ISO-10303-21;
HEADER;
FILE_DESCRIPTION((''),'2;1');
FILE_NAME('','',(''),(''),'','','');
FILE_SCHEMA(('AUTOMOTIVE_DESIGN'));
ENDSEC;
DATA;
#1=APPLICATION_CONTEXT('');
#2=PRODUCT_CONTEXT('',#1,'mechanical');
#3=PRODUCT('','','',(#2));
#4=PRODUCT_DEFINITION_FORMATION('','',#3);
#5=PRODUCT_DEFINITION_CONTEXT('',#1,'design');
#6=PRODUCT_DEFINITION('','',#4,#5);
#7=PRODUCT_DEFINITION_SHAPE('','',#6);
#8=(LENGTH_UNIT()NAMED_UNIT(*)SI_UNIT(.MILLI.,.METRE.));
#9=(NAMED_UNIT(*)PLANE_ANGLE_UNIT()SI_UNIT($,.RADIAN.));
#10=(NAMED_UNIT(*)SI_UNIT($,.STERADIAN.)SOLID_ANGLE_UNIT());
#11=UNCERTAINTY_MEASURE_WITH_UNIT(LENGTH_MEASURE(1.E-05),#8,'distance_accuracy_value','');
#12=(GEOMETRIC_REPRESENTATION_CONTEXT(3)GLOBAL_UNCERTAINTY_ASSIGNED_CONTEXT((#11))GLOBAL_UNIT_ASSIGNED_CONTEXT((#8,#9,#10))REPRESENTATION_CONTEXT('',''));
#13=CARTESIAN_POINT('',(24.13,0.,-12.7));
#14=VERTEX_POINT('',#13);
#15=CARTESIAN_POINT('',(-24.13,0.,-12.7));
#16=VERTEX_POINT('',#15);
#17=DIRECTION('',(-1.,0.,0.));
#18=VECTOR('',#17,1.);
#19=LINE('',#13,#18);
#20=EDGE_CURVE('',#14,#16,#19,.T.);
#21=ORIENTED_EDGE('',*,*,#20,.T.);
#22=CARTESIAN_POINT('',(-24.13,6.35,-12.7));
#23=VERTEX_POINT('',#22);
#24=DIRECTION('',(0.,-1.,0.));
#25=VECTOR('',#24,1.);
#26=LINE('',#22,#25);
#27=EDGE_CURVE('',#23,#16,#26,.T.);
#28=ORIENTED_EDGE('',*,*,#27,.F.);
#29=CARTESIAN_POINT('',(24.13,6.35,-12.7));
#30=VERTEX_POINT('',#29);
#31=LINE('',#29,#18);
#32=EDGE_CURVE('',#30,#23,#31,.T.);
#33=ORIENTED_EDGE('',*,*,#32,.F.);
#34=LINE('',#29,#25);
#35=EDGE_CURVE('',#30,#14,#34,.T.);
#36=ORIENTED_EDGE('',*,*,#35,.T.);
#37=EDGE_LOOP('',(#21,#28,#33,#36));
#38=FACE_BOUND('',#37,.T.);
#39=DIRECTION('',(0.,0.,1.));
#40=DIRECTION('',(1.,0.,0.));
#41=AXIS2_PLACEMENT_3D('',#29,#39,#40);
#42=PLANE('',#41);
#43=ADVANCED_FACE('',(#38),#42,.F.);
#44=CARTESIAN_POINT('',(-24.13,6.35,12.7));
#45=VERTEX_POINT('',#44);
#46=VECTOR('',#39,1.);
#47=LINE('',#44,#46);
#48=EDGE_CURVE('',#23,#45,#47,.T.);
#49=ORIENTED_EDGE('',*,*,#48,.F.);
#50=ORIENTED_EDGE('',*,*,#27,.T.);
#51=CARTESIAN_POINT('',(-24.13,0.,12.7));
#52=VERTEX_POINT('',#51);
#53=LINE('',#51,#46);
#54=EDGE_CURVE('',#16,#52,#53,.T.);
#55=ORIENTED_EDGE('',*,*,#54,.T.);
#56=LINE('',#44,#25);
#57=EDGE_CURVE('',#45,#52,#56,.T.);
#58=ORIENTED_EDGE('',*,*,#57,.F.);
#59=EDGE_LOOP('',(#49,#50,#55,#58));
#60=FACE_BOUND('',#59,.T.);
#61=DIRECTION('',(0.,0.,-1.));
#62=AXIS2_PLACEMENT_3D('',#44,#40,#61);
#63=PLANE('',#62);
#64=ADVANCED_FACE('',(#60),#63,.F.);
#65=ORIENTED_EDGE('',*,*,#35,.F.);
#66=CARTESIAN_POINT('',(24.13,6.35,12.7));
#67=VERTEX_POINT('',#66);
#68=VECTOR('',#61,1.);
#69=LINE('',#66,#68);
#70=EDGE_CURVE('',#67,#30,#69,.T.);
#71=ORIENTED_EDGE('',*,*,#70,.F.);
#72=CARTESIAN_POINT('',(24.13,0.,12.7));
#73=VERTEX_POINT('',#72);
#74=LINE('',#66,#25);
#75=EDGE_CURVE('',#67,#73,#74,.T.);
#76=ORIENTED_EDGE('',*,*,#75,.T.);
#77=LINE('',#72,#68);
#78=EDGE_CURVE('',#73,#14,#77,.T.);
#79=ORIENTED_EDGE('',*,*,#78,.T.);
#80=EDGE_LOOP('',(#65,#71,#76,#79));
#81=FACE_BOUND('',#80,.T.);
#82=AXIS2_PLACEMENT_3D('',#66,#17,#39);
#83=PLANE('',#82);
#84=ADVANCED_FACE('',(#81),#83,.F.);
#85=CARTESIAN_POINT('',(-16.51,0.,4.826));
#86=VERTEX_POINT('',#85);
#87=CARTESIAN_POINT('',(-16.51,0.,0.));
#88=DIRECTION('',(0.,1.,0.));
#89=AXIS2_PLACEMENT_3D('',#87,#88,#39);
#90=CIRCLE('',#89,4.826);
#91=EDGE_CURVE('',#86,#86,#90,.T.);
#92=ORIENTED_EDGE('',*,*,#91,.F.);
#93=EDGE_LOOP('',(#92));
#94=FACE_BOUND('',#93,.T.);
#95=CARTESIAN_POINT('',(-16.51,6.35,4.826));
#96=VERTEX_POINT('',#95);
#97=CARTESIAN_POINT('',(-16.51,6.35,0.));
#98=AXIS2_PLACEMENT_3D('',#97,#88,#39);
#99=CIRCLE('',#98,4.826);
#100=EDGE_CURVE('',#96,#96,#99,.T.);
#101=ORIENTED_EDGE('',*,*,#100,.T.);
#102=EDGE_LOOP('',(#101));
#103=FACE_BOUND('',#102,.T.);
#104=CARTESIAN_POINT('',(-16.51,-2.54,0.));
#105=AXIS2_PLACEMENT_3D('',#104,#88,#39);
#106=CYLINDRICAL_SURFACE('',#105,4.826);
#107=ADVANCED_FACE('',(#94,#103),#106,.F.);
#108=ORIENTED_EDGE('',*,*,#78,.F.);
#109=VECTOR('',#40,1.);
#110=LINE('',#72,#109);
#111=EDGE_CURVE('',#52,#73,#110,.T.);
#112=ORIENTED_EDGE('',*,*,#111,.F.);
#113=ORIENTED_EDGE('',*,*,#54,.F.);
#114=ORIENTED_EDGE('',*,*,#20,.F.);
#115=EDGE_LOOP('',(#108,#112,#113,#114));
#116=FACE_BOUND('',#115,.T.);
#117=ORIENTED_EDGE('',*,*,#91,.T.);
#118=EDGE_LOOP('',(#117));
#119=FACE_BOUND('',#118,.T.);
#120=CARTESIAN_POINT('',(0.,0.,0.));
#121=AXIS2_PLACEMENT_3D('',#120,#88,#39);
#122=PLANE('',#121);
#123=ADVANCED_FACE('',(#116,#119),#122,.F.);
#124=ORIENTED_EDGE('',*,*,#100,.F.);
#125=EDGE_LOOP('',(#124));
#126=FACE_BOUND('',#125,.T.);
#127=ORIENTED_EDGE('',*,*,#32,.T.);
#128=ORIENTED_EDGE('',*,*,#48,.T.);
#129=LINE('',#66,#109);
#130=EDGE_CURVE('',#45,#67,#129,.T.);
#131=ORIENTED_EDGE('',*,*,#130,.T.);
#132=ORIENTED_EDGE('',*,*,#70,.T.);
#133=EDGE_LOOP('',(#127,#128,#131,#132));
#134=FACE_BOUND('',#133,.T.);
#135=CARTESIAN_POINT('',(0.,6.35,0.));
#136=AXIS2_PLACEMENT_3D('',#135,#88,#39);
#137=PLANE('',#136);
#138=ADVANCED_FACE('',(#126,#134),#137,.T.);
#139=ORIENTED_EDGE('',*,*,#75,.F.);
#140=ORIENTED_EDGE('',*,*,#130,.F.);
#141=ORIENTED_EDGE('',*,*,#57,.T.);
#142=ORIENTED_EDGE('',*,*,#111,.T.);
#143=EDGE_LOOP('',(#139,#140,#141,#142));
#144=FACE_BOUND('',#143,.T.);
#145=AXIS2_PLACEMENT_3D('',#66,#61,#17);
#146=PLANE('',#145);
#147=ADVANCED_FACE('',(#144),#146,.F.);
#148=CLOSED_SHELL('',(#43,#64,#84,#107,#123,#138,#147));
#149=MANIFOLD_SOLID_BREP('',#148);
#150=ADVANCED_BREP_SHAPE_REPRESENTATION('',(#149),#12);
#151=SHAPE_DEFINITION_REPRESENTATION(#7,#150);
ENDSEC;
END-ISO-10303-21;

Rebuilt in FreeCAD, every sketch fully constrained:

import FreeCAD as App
import Part
import Sketcher
Q = App.Units.Quantity

doc = App.newDocument("Part")
body = doc.addObject("PartDesign::Body", "Body")

# Sketch on XZ plane
sketch1 = body.newObject("Sketcher::SketchObject", "Sketch")
sketch1.AttachmentSupport = (doc.getObject("XZ_Plane"), [""])
sketch1.MapMode = "FlatFace"
sketch1.addGeometry(Part.LineSegment(App.Vector(-24, -13, 0), App.Vector(-24, 13, 0)), False)
sketch1.addGeometry(Part.LineSegment(App.Vector(-24, 13, 0), App.Vector(24, 13, 0)), False)
sketch1.addGeometry(Part.LineSegment(App.Vector(24, 13, 0), App.Vector(24, -13, 0)), False)
sketch1.addGeometry(Part.LineSegment(App.Vector(24, -13, 0), App.Vector(-24, -13, 0)), False)
sketch1.addConstraint(Sketcher.Constraint("Coincident", 0, 2, 1, 1))
sketch1.addConstraint(Sketcher.Constraint("Coincident", 1, 2, 2, 1))
sketch1.addConstraint(Sketcher.Constraint("Coincident", 2, 2, 3, 1))
sketch1.addConstraint(Sketcher.Constraint("Coincident", 3, 2, 0, 1))
sketch1.addConstraint(Sketcher.Constraint("Vertical", 0))
sketch1.addConstraint(Sketcher.Constraint("Horizontal", 1))
sketch1.addConstraint(Sketcher.Constraint("Vertical", 2))
sketch1.addConstraint(Sketcher.Constraint("Horizontal", 3))
sketch1.addConstraint(Sketcher.Constraint("Symmetric", 0, 2, 2, 2, -1, 1))
sketch1.addConstraint(Sketcher.Constraint("DistanceY", 0, 1, 0, 2, Q("1 in")))
sketch1.addConstraint(Sketcher.Constraint("DistanceX", 1, 1, 1, 2, Q("1.9 in")))
pad1 = body.newObject("PartDesign::Pad", "Pad")
pad1.Profile = sketch1
pad1.Length = Q("0.25 in")
pad1.Reversed = True

# Sketch on XZ plane
sketch2 = body.newObject("Sketcher::SketchObject", "Sketch001")
sketch2.AttachmentSupport = (doc.getObject("XZ_Plane"), [""])
sketch2.MapMode = "FlatFace"
sketch2.AttachmentOffset = App.Placement(App.Vector(0, 0, -0.25 * 25.4), App.Rotation())
sketch2.addGeometry(Part.Circle(App.Vector(-16.5, 0, 0), App.Vector(0, 0, 1), 4.8), False)
sketch2.addConstraint(Sketcher.Constraint("PointOnObject", 0, 3, -1))
sketch2.addConstraint(Sketcher.Constraint("Diameter", 0, Q("0.38 in")))
sketch2.addConstraint(Sketcher.Constraint("DistanceX", 0, 3, -1, 1, Q("0.65 in")))
pocket1 = body.newObject("PartDesign::Pocket", "Pocket")
pocket1.Profile = sketch2
pocket1.Length = Q("0.35 in")
pocket1.Reversed = True

doc.recompute()
